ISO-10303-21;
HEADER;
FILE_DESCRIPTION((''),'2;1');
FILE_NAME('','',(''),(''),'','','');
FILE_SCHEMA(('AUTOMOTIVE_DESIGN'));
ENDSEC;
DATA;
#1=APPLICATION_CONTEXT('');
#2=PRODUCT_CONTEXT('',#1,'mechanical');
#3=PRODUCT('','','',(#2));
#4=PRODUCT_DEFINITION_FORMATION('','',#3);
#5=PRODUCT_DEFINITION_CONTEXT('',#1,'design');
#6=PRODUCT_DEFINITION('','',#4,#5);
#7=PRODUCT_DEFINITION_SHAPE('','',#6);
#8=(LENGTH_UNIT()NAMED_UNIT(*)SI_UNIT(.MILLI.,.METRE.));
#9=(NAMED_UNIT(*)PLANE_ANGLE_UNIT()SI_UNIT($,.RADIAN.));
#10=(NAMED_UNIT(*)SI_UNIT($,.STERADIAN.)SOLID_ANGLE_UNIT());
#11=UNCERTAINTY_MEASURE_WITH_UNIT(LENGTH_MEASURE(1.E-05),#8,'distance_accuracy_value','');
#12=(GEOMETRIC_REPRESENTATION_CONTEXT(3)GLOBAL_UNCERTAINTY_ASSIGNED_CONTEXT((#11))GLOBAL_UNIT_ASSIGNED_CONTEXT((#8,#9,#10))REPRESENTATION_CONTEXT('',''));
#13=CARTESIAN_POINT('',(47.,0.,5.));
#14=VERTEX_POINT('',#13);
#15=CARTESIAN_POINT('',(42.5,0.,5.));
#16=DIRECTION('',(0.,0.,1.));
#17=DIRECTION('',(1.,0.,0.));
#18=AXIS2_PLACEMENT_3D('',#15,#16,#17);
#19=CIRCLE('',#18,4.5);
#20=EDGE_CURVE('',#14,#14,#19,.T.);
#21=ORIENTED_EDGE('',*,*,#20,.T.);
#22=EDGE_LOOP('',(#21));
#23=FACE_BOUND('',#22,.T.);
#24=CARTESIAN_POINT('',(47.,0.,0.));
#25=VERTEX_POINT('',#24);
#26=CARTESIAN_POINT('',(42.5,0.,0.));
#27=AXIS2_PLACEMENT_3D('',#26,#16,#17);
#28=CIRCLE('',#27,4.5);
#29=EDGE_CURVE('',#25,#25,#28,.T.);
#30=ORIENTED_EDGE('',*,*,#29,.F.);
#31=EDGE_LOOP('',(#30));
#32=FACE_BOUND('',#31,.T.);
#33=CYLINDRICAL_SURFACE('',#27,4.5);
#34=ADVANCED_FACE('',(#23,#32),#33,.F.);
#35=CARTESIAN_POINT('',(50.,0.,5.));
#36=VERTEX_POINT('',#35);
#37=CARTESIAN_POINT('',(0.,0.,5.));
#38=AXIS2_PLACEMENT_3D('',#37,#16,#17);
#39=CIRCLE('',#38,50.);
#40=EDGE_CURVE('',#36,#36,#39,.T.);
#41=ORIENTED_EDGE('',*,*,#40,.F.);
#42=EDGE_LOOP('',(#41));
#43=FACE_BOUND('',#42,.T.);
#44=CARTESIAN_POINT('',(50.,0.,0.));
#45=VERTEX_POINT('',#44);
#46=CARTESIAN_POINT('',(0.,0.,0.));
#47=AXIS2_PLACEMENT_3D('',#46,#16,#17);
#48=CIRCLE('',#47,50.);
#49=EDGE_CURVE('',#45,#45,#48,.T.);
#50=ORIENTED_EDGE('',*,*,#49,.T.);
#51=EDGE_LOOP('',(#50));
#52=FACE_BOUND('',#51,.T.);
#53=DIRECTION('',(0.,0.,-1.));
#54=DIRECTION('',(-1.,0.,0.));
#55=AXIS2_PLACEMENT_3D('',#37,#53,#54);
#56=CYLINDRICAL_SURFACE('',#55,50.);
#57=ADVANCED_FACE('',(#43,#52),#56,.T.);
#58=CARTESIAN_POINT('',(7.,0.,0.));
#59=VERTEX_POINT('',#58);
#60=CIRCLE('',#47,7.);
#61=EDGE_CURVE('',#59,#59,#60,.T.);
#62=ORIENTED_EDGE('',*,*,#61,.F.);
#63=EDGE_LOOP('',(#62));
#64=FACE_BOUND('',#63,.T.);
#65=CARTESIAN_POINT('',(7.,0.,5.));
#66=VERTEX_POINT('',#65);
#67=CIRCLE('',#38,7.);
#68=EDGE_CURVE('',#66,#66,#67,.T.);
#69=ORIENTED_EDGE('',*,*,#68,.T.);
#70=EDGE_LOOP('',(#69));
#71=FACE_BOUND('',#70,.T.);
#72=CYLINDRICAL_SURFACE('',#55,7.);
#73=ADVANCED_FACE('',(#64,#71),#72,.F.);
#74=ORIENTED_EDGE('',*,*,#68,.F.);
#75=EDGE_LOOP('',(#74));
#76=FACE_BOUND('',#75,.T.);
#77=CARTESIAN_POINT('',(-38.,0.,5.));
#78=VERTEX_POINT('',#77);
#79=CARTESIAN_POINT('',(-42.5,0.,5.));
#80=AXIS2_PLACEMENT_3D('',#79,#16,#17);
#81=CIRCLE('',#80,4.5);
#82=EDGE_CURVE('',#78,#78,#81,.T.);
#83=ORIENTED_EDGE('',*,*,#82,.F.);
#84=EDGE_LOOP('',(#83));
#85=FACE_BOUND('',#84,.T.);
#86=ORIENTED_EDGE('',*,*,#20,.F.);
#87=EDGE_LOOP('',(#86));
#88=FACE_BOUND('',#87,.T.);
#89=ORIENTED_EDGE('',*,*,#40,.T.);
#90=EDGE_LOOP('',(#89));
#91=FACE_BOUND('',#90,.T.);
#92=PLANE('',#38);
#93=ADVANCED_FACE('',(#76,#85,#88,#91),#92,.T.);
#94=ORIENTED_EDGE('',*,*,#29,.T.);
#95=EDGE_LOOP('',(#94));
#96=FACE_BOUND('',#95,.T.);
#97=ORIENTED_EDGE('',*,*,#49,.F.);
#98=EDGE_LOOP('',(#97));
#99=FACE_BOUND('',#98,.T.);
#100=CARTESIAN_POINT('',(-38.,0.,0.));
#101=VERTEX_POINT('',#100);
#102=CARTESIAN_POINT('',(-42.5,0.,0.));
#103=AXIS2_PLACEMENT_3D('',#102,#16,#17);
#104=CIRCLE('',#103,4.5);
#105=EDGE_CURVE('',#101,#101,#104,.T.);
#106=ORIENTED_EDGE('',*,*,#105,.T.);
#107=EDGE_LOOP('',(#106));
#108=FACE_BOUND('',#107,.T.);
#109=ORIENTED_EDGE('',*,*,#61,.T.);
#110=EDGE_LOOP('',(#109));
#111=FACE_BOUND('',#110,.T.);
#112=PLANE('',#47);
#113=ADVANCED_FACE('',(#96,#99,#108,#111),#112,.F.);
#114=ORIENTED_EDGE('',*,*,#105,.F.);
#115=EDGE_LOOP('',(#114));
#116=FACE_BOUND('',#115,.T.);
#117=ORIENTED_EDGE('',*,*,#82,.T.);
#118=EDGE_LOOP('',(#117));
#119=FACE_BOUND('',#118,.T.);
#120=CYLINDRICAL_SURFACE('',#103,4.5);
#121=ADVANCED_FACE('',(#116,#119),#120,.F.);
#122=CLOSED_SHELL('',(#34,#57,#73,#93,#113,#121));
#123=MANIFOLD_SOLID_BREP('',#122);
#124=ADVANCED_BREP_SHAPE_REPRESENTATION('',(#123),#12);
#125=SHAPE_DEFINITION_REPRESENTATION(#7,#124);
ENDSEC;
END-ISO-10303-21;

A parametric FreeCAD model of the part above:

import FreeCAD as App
import Part
import Sketcher

V = App.Vector

doc = App.newDocument("Part")
body = doc.addObject("PartDesign::Body", "Body")

sketch1 = body.newObject("Sketcher::SketchObject", "Sketch")
sketch1.AttachmentSupport = (doc.getObject("XY_Plane"), [""])
sketch1.MapMode = "FlatFace"
sketch1.addGeometry(Part.Circle(V(0, 0, 0), V(0, 0, 1), 50), False)
sketch1.addGeometry(Part.Circle(V(0, 0, 0), V(0, 0, 1), 7), False)
sketch1.addConstraint(Sketcher.Constraint("Coincident", 0, 3, -1, 1))
sketch1.addConstraint(Sketcher.Constraint("Coincident", 1, 3, -1, 1))
sketch1.addConstraint(Sketcher.Constraint("Diameter", 0, 100.0))
sketch1.addConstraint(Sketcher.Constraint("Diameter", 1, 14.0))
pad1 = body.newObject("PartDesign::Pad", "Pad")
pad1.Profile = sketch1
pad1.Length = 5

sketch2 = body.newObject("Sketcher::SketchObject", "Sketch001")
sketch2.AttachmentSupport = (doc.getObject("XY_Plane"), [""])
sketch2.MapMode = "FlatFace"
sketch2.AttachmentOffset = App.Placement(V(0, 0, 5), App.Rotation())
sketch2.addGeometry(Part.Circle(V(-42.5, 0, 0), V(0, 0, 1), 4.5), False)
sketch2.addGeometry(Part.Circle(V(42.5, 0, 0), V(0, 0, 1), 4.5), False)
sketch2.addConstraint(Sketcher.Constraint("Equal", 0, 1))
sketch2.addConstraint(Sketcher.Constraint("Symmetric", 0, 3, 1, 3, -1, 1))
sketch2.addConstraint(Sketcher.Constraint("PointOnObject", 0, 3, -1))
sketch2.addConstraint(Sketcher.Constraint("Diameter", 0, 9.0))
sketch2.addConstraint(Sketcher.Constraint("DistanceX", 0, 3, 1, 3, 85.0))
pocket1 = body.newObject("PartDesign::Pocket", "Pocket")
pocket1.Profile = sketch2
pocket1.Length = 5

doc.recompute()
